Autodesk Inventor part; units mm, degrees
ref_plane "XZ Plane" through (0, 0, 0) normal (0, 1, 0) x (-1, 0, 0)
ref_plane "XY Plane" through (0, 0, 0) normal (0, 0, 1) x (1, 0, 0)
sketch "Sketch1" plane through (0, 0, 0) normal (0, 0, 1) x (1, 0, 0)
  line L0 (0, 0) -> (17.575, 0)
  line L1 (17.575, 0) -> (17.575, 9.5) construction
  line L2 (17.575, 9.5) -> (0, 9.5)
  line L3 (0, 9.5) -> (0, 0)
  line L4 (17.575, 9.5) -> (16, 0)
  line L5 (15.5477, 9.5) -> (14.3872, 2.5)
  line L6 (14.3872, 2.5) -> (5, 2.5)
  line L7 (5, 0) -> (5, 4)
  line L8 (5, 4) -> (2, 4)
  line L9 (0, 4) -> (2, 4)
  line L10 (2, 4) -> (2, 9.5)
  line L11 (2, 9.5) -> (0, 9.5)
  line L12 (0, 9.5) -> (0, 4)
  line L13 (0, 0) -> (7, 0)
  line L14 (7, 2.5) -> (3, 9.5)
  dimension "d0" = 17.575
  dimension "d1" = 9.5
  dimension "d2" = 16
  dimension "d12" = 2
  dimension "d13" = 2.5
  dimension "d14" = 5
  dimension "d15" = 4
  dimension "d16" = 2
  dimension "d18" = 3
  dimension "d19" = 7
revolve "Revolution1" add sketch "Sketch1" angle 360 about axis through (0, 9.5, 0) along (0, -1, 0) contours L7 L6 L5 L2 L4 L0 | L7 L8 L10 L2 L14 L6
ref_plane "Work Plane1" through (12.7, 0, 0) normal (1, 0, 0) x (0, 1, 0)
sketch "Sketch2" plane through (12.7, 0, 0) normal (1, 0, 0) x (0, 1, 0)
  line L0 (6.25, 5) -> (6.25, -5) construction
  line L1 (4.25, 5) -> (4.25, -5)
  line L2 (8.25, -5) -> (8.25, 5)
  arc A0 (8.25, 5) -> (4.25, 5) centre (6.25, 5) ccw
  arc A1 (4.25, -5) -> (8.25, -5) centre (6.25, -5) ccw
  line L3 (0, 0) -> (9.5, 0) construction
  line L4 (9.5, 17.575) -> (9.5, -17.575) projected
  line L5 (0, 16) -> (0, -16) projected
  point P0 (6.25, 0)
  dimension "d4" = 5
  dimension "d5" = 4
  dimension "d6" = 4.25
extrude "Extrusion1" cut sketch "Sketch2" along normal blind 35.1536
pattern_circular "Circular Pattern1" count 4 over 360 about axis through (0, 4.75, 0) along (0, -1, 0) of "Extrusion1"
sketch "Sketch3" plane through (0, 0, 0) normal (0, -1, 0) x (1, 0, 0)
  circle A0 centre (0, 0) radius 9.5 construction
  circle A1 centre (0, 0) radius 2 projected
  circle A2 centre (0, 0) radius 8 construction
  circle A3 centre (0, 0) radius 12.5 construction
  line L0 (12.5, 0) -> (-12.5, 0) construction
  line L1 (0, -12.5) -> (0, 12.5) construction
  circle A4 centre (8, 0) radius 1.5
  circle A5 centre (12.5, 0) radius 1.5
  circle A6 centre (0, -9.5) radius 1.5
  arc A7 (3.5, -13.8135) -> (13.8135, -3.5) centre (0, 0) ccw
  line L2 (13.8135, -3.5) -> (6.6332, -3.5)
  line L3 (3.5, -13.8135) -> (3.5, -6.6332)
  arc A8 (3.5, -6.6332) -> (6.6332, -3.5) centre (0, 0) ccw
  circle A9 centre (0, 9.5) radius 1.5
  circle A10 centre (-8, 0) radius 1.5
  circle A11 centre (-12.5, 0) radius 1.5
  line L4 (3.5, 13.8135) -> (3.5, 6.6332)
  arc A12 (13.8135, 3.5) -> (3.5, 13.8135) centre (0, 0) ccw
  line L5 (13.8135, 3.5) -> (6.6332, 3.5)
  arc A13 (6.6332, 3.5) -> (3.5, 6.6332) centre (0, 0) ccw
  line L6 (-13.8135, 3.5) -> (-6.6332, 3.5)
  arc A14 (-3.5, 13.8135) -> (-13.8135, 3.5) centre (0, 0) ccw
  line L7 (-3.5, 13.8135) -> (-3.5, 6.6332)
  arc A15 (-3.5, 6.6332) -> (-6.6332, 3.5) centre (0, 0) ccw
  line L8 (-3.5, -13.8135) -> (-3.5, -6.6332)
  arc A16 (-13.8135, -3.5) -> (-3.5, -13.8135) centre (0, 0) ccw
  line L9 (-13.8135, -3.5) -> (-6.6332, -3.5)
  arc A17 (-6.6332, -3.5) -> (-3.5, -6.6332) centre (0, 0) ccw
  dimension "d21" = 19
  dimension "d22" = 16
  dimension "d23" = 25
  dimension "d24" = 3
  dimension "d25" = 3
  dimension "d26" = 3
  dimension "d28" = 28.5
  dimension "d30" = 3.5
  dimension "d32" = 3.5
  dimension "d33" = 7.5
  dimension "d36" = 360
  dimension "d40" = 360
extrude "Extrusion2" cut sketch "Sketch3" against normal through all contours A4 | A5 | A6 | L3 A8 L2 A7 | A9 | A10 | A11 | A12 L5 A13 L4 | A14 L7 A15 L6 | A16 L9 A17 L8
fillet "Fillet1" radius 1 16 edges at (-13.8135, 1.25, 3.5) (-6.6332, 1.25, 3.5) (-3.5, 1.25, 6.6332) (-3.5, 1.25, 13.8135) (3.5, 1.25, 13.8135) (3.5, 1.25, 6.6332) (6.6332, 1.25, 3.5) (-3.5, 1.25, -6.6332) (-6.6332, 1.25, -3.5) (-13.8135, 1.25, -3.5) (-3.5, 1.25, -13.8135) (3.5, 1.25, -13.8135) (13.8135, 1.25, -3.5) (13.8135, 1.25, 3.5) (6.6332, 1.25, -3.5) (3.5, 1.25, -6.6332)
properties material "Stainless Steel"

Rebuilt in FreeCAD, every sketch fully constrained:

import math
import FreeCAD as App
import Part
import Sketcher


def edges_at(feature, points):
    """Names of the edges that pass closest to the given points."""
    edges = feature.Shape.Edges
    near = lambda p: min(range(len(edges)), key=lambda i: edges[i].distToShape(Part.Vertex(*p))[0])
    return sorted({f"Edge{near(p) + 1}" for p in points})

doc = App.newDocument("Part")
body = doc.addObject("PartDesign::Body", "Body")

sketch1 = body.newObject("Sketcher::SketchObject", "Sketch")
sketch1.AttachmentSupport = (doc.getObject("XY_Plane"), [""])
sketch1.MapMode = "FlatFace"
sketch1.addGeometry([
    Part.LineSegment(App.Vector(5, 0, 0), App.Vector(16, 0, 0)),
    Part.LineSegment(App.Vector(16, 0, 0), App.Vector(17.6, 9.5, 0)),
    Part.LineSegment(App.Vector(17.6, 9.5, 0), App.Vector(15.5, 9.5, 0)),
    Part.LineSegment(App.Vector(15.5, 9.5, 0), App.Vector(14.4, 2.5, 0)),
    Part.LineSegment(App.Vector(14.4, 2.5, 0), App.Vector(7, 2.5, 0)),
    Part.LineSegment(App.Vector(7, 2.5, 0), App.Vector(3, 9.5, 0)),
    Part.LineSegment(App.Vector(3, 9.5, 0), App.Vector(2, 9.5, 0)),
    Part.LineSegment(App.Vector(2, 9.5, 0), App.Vector(2, 4, 0)),
    Part.LineSegment(App.Vector(2, 4, 0), App.Vector(5, 4, 0)),
    Part.LineSegment(App.Vector(5, 4, 0), App.Vector(5, 0, 0)),
], False)
sketch1.addConstraint([
    Sketcher.Constraint("Coincident", 0, 2, 1, 1),
    Sketcher.Constraint("Coincident", 1, 2, 2, 1),
    Sketcher.Constraint("Coincident", 2, 2, 3, 1),
    Sketcher.Constraint("Coincident", 3, 2, 4, 1),
    Sketcher.Constraint("Coincident", 4, 2, 5, 1),
    Sketcher.Constraint("Coincident", 5, 2, 6, 1),
    Sketcher.Constraint("Coincident", 6, 2, 7, 1),
    Sketcher.Constraint("Coincident", 7, 2, 8, 1),
    Sketcher.Constraint("Coincident", 8, 2, 9, 1),
    Sketcher.Constraint("Coincident", 9, 2, 0, 1),
    Sketcher.Constraint("Horizontal", 0),
    Sketcher.Constraint("Horizontal", 2),
    Sketcher.Constraint("Horizontal", 4),
    Sketcher.Constraint("Horizontal", 6),
    Sketcher.Constraint("Vertical", 7),
    Sketcher.Constraint("Horizontal", 8),
    Sketcher.Constraint("Vertical", 9),
    Sketcher.Constraint("PointOnObject", 0, 2, -1),
    Sketcher.Constraint("Parallel", 1, 3),
    Sketcher.Constraint("Horizontal", 2, 2, 5, 2),
    Sketcher.Constraint("DistanceX", 8, 1, 8, 2, 3.0),
    Sketcher.Constraint("DistanceY", 9, 2, 9, 1, 4.0),
    Sketcher.Constraint("DistanceX", -1, 1, 0, 2, 16.0),
    Sketcher.Constraint("DistanceX", -1, 1, 4, 2, 7.0),
    Sketcher.Constraint("DistanceX", -1, 1, 5, 2, 3.0),
    Sketcher.Constraint("DistanceX", -1, 1, 6, 2, 2.0),
    Sketcher.Constraint("DistanceY", 3, 2, 2, 2, 7.0),
    Sketcher.Constraint("DistanceY", -1, 1, 1, 2, 9.5),
    Sketcher.Constraint("DistanceX", -1, 1, 1, 2, 17.575),
    Sketcher.Constraint("DistanceX", 2, 2, 2, 1, 2.0273),
])
revolution = body.newObject("PartDesign::Revolution", "Revolution")
revolution.Profile = sketch1
revolution.ReferenceAxis = (sketch1, ["V_Axis"])
revolution.Angle = 360

sketch2 = body.newObject("Sketcher::SketchObject", "Sketch001")
sketch2.AttachmentSupport = (doc.getObject("YZ_Plane"), [""])
sketch2.MapMode = "FlatFace"
sketch2.AttachmentOffset = App.Placement(App.Vector(0, 0, 12.7), App.Rotation())
sketch2.addGeometry([
    Part.ArcOfCircle(Part.Circle(App.Vector(6.2, 5, 0), App.Vector(0, 0, 1), 2), math.radians(0), math.radians(180)),
    Part.LineSegment(App.Vector(4.2, 5, 0), App.Vector(4.2, -5, 0)),
    Part.ArcOfCircle(Part.Circle(App.Vector(6.2, -5, 0), App.Vector(0, 0, 1), 2), math.radians(180), math.radians(360)),
    Part.LineSegment(App.Vector(8.2, -5, 0), App.Vector(8.2, 5, 0)),
], False)
sketch2.addConstraint([
    Sketcher.Constraint("Tangent", 0, 2, 1, 1),
    Sketcher.Constraint("Tangent", 1, 2, 2, 1),
    Sketcher.Constraint("Tangent", 2, 2, 3, 1),
    Sketcher.Constraint("Tangent", 3, 2, 0, 1),
    Sketcher.Constraint("Vertical", 1),
    Sketcher.Constraint("Vertical", 3),
    Sketcher.Constraint("Radius", 0, 2.0),
    Sketcher.Constraint("DistanceY", -1, 1, 0, 3, 5.0),
    Sketcher.Constraint("DistanceY", 2, 3, -1, 1, 5.0),
    Sketcher.Constraint("DistanceX", -1, 1, 0, 2, 4.25),
])
pocket1 = body.newObject("PartDesign::Pocket", "Pocket")
pocket1.Profile = sketch2
pocket1.Length = 35.1536
pocket1.Reversed = True
doc.recompute()

polarpattern = body.newObject("PartDesign::PolarPattern", "PolarPattern")
polarpattern.Originals = [pocket1]
polarpattern.Axis = (doc.getObject("Y_Axis"), [""])
polarpattern.Angle = 360
polarpattern.Occurrences = 4
body.Tip = polarpattern

sketch3 = body.newObject("Sketcher::SketchObject", "Sketch002")
sketch3.AttachmentSupport = (doc.getObject("XZ_Plane"), [""])
sketch3.MapMode = "FlatFace"
sketch3.addGeometry([
    Part.Circle(App.Vector(8, 0, 0), App.Vector(0, 0, 1), 1.5),
    Part.Circle(App.Vector(12.5, 0, 0), App.Vector(0, 0, 1), 1.5),
    Part.Circle(App.Vector(0, -9.5, 0), App.Vector(0, 0, 1), 1.5),
    Part.LineSegment(App.Vector(3.5, -6.6, 0), App.Vector(3.5, -13.8, 0)),
    Part.ArcOfCircle(Part.Circle(App.Vector(0, 0, 0), App.Vector(0, 0, 1), 14.3), math.radians(-76), math.radians(-14)),
    Part.LineSegment(App.Vector(13.8, -3.5, 0), App.Vector(6.6, -3.5, 0)),
    Part.ArcOfCircle(Part.Circle(App.Vector(0, 0, 0), App.Vector(0, 0, 1), 7.5), math.radians(-62), math.radians(-28)),
    Part.Circle(App.Vector(0, 9.5, 0), App.Vector(0, 0, 1), 1.5),
    Part.Circle(App.Vector(-8, 0, 0), App.Vector(0, 0, 1), 1.5),
    Part.Circle(App.Vector(-12.5, 0, 0), App.Vector(0, 0, 1), 1.5),
    Part.ArcOfCircle(Part.Circle(App.Vector(0, 0, 0), App.Vector(0, 0, 1), 14.3), math.radians(14), math.radians(76)),
    Part.LineSegment(App.Vector(3.5, 13.8, 0), App.Vector(3.5, 6.6, 0)),
    Part.ArcOfCircle(Part.Circle(App.Vector(0, 0, 0), App.Vector(0, 0, 1), 7.5), math.radians(28), math.radians(62)),
    Part.LineSegment(App.Vector(6.6, 3.5, 0), App.Vector(13.8, 3.5, 0)),
    Part.ArcOfCircle(Part.Circle(App.Vector(0, 0, 0), App.Vector(0, 0, 1), 14.3), math.radians(104), math.radians(166)),
    Part.LineSegment(App.Vector(-13.8, 3.5, 0), App.Vector(-6.6, 3.5, 0)),
    Part.ArcOfCircle(Part.Circle(App.Vector(0, 0, 0), App.Vector(0, 0, 1), 7.5), math.radians(118), math.radians(152)),
    Part.LineSegment(App.Vector(-3.5, 6.6, 0), App.Vector(-3.5, 13.8, 0)),
    Part.ArcOfCircle(Part.Circle(App.Vector(0, 0, 0), App.Vector(0, 0, 1), 14.3), math.radians(-166), math.radians(-104)),
    Part.LineSegment(App.Vector(-3.5, -13.8, 0), App.Vector(-3.5, -6.6, 0)),
    Part.ArcOfCircle(Part.Circle(App.Vector(0, 0, 0), App.Vector(0, 0, 1), 7.5), math.radians(-152), math.radians(-118)),
    Part.LineSegment(App.Vector(-6.6, -3.5, 0), App.Vector(-13.8, -3.5, 0)),
], False)
sketch3.addConstraint([
    Sketcher.Constraint("Coincident", 3, 2, 4, 1),
    Sketcher.Constraint("Coincident", 4, 2, 5, 1),
    Sketcher.Constraint("Coincident", 5, 2, 6, 2),
    Sketcher.Constraint("Coincident", 6, 1, 3, 1),
    Sketcher.Constraint("Coincident", 10, 2, 11, 1),
    Sketcher.Constraint("Coincident", 11, 2, 12, 2),
    Sketcher.Constraint("Coincident", 12, 1, 13, 1),
    Sketcher.Constraint("Coincident", 13, 2, 10, 1),
    Sketcher.Constraint("Coincident", 14, 2, 15, 1),
    Sketcher.Constraint("Coincident", 15, 2, 16, 2),
    Sketcher.Constraint("Coincident", 16, 1, 17, 1),
    Sketcher.Constraint("Coincident", 17, 2, 14, 1),
    Sketcher.Constraint("Coincident", 18, 2, 19, 1),
    Sketcher.Constraint("Coincident", 19, 2, 20, 2),
    Sketcher.Constraint("Coincident", 20, 1, 21, 1),
    Sketcher.Constraint("Coincident", 21, 2, 18, 1),
    Sketcher.Constraint("Vertical", 3),
    Sketcher.Constraint("Horizontal", 5),
    Sketcher.Constraint("Vertical", 11),
    Sketcher.Constraint("Horizontal", 13),
    Sketcher.Constraint("Horizontal", 15),
    Sketcher.Constraint("Vertical", 17),
    Sketcher.Constraint("Vertical", 19),
    Sketcher.Constraint("Horizontal", 21),
    Sketcher.Constraint("Coincident", 4, 3, -1, 1),
    Sketcher.Constraint("Coincident", 6, 3, -1, 1),
    Sketcher.Constraint("Coincident", 10, 3, -1, 1),
    Sketcher.Constraint("Coincident", 12, 3, -1, 1),
    Sketcher.Constraint("Coincident", 14, 3, -1, 1),
    Sketcher.Constraint("Coincident", 16, 3, -1, 1),
    Sketcher.Constraint("Coincident", 18, 3, -1, 1),
    Sketcher.Constraint("Coincident", 20, 3, -1, 1),
    Sketcher.Constraint("Equal", 0, 1),
    Sketcher.Constraint("Equal", 1, 2),
    Sketcher.Constraint("Equal", 2, 7),
    Sketcher.Constraint("Equal", 7, 8),
    Sketcher.Constraint("Equal", 8, 9),
    Sketcher.Constraint("Equal", 4, 10),
    Sketcher.Constraint("Equal", 6, 12),
    Sketcher.Constraint("Equal", 10, 14),
    Sketcher.Constraint("Equal", 12, 16),
    Sketcher.Constraint("Equal", 14, 18),
    Sketcher.Constraint("Equal", 16, 20),
    Sketcher.Constraint("Symmetric", 2, 3, 7, 3, -1, 1),
    Sketcher.Constraint("Symmetric", 0, 3, 8, 3, -1, 1),
    Sketcher.Constraint("Symmetric", 1, 3, 9, 3, -1, 1),
    Sketcher.Constraint("PointOnObject", 0, 3, -1),
    Sketcher.Constraint("PointOnObject", 1, 3, -1),
    Sketcher.Constraint("PointOnObject", 2, 3, -2),
    Sketcher.Constraint("Horizontal", 13, 2, 14, 2),
    Sketcher.Constraint("Horizontal", 11, 2, 16, 1),
    Sketcher.Constraint("Horizontal", 3, 2, 18, 2),
    Sketcher.Constraint("Horizontal", 5, 2, 20, 1),
    Sketcher.Constraint("Vertical", 6, 1, 10, 2),
    Sketcher.Constraint("Vertical", 5, 2, 12, 1),
    Sketcher.Constraint("Equal", 21, 3),
    Sketcher.Constraint("Diameter", 0, 3.0),
    Sketcher.Constraint("Radius", 6, 7.5),
    Sketcher.Constraint("Radius", 4, 14.25),
    Sketcher.Constraint("DistanceY", 2, 3, 7, 3, 19.0),
    Sketcher.Constraint("DistanceX", 8, 3, 0, 3, 16.0),
    Sketcher.Constraint("DistanceX", -1, 1, 3, 2, 3.5),
    Sketcher.Constraint("DistanceX", -1, 1, 1, 3, 12.5),
])
pocket2 = body.newObject("PartDesign::Pocket", "Pocket001")
pocket2.Profile = sketch3
pocket2.Type = "ThroughAll"
doc.recompute()

fillet = body.newObject("PartDesign::Fillet", "Fillet")
fillet.Base = (pocket2, edges_at(pocket2, [
    (-13.813, 1.25, 3.5),
    (-6.633, 1.25, 3.5),
    (-3.5, 1.25, 6.633),
    (-3.5, 1.25, 13.813),
    (3.5, 1.25, 13.813),
    (3.5, 1.25, 6.633),
    (6.633, 1.25, 3.5),
    (-3.5, 1.25, -6.633),
    (-6.633, 1.25, -3.5),
    (-13.813, 1.25, -3.5),
    (-3.5, 1.25, -13.813),
    (3.5, 1.25, -13.813),
    (13.813, 1.25, -3.5),
    (13.813, 1.25, 3.5),
    (6.633, 1.25, -3.5),
    (3.5, 1.25, -6.633),
]))
fillet.Radius = 1

doc.recompute()
